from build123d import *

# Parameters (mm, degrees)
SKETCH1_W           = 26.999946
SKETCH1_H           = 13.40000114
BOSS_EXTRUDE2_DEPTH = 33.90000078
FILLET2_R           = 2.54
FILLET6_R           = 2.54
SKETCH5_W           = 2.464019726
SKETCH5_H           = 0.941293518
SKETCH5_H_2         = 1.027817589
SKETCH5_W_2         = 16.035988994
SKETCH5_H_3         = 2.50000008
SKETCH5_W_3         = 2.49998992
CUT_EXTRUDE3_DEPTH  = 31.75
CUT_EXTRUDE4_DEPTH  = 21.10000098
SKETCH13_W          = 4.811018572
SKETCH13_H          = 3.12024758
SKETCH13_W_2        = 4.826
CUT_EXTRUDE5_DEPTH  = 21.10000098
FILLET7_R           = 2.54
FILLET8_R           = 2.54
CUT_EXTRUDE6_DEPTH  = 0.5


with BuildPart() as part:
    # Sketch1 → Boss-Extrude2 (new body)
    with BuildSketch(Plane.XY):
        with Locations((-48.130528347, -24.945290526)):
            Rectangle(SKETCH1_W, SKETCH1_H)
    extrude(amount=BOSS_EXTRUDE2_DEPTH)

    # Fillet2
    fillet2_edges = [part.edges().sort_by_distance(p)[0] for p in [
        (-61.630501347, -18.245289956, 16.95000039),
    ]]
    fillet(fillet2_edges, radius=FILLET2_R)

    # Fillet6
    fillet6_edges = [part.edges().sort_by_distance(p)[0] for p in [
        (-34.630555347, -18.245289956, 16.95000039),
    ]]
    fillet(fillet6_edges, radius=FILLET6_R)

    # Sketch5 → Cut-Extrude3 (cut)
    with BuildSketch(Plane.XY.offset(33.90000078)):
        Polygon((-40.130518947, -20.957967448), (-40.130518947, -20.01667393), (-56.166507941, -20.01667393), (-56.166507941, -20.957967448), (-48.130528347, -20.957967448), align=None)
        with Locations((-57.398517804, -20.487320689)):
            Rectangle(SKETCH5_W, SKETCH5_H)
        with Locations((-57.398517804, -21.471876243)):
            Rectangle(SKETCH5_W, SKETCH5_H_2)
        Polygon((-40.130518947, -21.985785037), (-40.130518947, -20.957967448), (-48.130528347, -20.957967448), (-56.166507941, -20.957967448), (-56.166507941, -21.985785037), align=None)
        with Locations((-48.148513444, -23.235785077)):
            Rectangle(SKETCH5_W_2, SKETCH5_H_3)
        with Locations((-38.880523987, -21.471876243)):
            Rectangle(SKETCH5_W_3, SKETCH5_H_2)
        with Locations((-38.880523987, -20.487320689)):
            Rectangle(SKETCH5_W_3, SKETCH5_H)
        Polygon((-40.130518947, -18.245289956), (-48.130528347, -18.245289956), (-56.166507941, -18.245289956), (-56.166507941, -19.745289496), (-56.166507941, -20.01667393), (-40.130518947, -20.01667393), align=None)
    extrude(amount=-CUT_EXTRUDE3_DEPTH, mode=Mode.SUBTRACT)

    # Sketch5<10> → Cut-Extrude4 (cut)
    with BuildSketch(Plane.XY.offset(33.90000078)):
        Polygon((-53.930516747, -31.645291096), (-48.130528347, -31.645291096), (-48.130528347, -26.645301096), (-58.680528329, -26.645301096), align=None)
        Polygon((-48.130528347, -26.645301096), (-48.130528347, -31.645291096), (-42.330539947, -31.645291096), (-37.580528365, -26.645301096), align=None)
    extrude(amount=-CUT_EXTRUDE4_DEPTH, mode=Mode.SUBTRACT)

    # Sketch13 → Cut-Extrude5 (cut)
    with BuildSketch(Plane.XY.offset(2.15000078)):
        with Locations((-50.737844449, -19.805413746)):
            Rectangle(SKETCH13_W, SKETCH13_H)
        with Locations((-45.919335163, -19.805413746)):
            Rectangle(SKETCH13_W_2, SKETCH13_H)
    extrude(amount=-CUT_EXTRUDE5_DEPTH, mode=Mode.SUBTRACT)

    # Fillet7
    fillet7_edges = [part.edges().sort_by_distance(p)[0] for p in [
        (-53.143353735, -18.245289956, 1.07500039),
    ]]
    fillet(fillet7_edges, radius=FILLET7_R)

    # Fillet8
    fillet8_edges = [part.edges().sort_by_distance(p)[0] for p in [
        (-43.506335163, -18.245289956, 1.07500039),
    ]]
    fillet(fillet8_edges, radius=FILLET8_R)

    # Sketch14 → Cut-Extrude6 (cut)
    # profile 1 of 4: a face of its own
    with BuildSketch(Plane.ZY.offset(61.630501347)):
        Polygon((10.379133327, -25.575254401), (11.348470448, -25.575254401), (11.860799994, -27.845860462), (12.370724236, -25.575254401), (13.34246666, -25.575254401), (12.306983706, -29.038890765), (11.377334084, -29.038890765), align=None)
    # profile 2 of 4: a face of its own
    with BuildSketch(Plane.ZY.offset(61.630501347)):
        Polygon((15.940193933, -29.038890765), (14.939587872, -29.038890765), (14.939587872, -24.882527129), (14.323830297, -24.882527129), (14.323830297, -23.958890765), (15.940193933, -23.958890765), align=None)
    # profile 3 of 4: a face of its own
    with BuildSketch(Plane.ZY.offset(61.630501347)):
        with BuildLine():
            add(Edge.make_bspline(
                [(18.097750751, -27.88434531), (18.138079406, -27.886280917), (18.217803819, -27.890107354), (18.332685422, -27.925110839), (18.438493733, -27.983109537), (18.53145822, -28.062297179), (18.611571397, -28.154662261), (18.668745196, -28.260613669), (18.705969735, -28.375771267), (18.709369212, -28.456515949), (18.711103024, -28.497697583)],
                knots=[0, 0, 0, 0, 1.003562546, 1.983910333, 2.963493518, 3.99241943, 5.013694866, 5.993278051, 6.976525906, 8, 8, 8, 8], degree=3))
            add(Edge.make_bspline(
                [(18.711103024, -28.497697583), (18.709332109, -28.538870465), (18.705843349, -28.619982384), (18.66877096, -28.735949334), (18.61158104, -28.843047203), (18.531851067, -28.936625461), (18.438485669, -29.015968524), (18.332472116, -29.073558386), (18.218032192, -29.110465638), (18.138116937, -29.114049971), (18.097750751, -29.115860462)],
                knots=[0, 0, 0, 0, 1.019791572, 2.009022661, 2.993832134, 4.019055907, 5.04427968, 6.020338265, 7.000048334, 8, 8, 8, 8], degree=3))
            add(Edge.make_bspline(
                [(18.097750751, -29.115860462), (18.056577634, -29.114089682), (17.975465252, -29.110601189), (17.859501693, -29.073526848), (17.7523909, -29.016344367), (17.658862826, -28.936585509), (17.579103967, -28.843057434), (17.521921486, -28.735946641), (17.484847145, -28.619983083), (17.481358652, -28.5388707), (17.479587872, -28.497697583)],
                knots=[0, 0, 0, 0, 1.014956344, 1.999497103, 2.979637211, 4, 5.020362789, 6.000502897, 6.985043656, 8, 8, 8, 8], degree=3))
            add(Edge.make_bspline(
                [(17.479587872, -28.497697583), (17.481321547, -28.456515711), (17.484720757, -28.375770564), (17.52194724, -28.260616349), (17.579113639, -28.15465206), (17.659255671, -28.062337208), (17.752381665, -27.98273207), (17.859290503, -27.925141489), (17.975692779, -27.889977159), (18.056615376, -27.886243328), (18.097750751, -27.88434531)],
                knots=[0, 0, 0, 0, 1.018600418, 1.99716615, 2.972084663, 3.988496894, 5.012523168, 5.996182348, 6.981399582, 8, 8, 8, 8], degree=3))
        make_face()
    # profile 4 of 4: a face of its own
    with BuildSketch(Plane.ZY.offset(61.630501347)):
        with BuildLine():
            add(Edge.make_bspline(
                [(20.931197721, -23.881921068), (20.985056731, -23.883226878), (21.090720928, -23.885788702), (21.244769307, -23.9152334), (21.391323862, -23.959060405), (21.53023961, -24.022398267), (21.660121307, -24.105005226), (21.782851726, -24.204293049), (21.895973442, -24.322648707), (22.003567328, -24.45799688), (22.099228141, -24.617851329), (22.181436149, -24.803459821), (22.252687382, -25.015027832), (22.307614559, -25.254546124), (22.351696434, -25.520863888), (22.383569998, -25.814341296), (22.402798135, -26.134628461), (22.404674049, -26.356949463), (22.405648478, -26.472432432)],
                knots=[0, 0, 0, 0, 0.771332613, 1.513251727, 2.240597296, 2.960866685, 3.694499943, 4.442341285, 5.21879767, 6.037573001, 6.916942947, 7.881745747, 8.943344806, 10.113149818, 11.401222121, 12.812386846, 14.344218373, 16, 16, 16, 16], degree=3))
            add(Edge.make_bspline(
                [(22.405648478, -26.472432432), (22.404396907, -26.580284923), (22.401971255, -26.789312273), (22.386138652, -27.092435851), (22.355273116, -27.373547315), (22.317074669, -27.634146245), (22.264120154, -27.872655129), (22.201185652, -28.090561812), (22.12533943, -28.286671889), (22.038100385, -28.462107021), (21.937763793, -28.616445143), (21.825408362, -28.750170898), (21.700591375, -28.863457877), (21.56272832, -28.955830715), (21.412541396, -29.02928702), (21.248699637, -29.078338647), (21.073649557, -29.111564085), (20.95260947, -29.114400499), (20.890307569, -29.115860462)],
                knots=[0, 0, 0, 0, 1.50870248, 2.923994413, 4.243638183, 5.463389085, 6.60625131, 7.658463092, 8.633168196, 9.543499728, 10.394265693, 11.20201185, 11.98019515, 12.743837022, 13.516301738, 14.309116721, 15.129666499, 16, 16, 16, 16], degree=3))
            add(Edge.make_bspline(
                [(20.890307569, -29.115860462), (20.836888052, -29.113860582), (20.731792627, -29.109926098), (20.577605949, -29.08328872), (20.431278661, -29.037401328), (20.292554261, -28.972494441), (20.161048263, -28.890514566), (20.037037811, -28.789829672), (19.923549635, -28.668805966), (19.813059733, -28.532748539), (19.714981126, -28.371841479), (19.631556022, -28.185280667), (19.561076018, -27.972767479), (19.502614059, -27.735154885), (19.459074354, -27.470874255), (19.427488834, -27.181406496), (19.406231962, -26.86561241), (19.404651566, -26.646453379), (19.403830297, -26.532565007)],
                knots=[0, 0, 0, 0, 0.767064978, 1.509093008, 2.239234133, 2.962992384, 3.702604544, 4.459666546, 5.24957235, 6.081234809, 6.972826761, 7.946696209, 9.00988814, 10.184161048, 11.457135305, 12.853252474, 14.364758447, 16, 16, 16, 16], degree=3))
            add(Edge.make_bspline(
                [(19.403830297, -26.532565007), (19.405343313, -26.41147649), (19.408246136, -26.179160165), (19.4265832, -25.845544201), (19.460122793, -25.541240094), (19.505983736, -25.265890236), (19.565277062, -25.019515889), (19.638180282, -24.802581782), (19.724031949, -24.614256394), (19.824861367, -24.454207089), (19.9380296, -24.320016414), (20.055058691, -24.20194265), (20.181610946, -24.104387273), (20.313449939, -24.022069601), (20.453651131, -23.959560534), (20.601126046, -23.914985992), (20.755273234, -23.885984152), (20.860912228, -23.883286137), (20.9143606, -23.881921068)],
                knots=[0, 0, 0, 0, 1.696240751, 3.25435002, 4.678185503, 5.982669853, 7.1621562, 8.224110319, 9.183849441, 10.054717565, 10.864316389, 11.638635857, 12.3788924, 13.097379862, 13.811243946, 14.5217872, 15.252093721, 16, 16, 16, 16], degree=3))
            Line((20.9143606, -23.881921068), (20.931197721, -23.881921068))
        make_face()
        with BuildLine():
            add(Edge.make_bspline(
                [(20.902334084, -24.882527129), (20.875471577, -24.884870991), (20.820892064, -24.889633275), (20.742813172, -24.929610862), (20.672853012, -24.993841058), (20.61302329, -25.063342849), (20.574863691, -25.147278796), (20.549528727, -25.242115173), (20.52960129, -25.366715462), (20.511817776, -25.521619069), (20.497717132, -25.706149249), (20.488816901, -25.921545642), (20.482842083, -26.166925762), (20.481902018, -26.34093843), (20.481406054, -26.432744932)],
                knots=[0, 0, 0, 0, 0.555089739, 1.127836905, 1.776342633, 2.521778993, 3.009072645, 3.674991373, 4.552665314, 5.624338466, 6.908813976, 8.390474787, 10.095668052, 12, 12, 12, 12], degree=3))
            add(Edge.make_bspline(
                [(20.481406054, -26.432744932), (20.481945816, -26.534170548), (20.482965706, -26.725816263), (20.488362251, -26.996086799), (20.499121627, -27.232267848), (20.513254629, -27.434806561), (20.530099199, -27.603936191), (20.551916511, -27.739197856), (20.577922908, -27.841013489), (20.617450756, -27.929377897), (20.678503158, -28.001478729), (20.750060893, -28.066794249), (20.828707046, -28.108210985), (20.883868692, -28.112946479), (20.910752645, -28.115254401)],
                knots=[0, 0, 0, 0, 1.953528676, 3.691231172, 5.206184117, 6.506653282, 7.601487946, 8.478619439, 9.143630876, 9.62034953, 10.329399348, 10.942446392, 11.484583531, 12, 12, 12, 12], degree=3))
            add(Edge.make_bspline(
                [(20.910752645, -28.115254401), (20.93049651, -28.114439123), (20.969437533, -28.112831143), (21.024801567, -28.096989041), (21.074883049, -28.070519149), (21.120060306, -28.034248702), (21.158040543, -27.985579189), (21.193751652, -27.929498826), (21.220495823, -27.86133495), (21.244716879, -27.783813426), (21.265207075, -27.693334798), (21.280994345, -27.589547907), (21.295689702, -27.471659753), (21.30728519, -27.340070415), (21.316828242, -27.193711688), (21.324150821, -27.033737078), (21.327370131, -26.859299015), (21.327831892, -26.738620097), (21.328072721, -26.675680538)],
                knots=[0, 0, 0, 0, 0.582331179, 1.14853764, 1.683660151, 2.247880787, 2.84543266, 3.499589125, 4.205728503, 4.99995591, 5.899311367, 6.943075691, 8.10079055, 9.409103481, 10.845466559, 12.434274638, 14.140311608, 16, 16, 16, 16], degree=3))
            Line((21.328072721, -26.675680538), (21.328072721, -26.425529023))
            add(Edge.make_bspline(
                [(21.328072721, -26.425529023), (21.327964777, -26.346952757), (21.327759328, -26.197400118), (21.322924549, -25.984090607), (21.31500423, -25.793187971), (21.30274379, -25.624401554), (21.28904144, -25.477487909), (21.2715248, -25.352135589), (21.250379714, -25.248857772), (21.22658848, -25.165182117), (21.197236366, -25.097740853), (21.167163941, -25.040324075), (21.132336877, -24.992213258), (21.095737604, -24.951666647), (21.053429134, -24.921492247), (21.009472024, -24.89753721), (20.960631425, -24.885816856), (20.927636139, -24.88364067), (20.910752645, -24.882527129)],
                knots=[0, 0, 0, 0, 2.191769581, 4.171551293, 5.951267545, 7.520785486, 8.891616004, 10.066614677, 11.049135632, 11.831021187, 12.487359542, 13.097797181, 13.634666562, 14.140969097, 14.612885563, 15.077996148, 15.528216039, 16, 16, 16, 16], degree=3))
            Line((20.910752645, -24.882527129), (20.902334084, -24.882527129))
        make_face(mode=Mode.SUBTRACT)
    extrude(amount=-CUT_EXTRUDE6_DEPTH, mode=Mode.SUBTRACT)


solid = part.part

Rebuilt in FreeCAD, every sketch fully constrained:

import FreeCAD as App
import Part
import Sketcher

V = App.Vector


def edges_at(feature, points):
    """Names of the edges that pass closest to the given points."""
    edges = feature.Shape.Edges
    near = lambda p: min(range(len(edges)), key=lambda i: edges[i].distToShape(Part.Vertex(*p))[0])
    return sorted({f"Edge{near(p) + 1}" for p in points})


def add_polygon(sketch, points):
    """Adds a closed chain of lines whose ends are joined by coincident constraints."""
    first, n = sketch.GeometryCount, len(points)
    for a, b in zip(points, points[1:] + points[:1]):
        sketch.addGeometry(Part.LineSegment(App.Vector(*a, 0), App.Vector(*b, 0)), False)
    for i in range(n):
        sketch.addConstraint(Sketcher.Constraint("Coincident", first + i, 2, first + (i + 1) % n, 1))

doc = App.newDocument("Part")
body = doc.addObject("PartDesign::Body", "Body")

# Sketch on XY plane
sketch1 = body.newObject("Sketcher::SketchObject", "Sketch")
sketch1.AttachmentSupport = (doc.getObject("XY_Plane"), [""])
sketch1.MapMode = "FlatFace"
add_polygon(sketch1, [(-61.630501, -18.24529), (-61.630501, -31.645291), (-34.630555, -31.645291), (-34.630555, -18.24529)])  # lines 0-3
sketch1.addConstraint([
    Sketcher.Constraint("Vertical", 0),
    Sketcher.Constraint("Horizontal", 1),
    Sketcher.Constraint("Vertical", 2),
    Sketcher.Constraint("Horizontal", 3),
    Sketcher.Constraint("DistanceY", 0, 2, 0, 1, 13.400001),
    Sketcher.Constraint("DistanceX", 0, 2, -1, 1, 61.630501),
    Sketcher.Constraint("DistanceX", 1, 1, 1, 2, 26.999946),
    Sketcher.Constraint("DistanceY", 0, 2, -1, 1, 31.645291),
])
pad1 = body.newObject("PartDesign::Pad", "Pad")
pad1.Profile = sketch1
pad1.Length = 33.900001
doc.recompute()

fillet = body.newObject("PartDesign::Fillet", "Fillet")
fillet.Base = (pad1, edges_at(pad1, [(-61.631, -18.245, 16.95)]))
fillet.Radius = 2.54
doc.recompute()

fillet2 = body.newObject("PartDesign::Fillet", "Fillet001")
fillet2.Base = (fillet, edges_at(fillet, [(-34.631, -18.245, 16.95)]))
fillet2.Radius = 2.54

# Sketch on XY plane
sketch2 = body.newObject("Sketcher::SketchObject", "Sketch001")
sketch2.AttachmentSupport = (doc.getObject("XY_Plane"), [""])
sketch2.MapMode = "FlatFace"
sketch2.AttachmentOffset = App.Placement(V(0, 0, 33.900001), App.Rotation())
add_polygon(sketch2, [(-58.630528, -20.016674), (-58.630528, -21.985785), (-56.166508, -21.985785), (-56.166508, -24.485785), (-40.130519, -24.485785), (-40.130519, -21.985785), (-37.630529, -21.985785), (-37.630529, -20.016674), (-40.130519, -20.016674), (-40.130519, -18.24529), (-56.166508, -18.24529), (-56.166508, -20.016674)])  # lines 0-11
sketch2.addConstraint([
    Sketcher.Constraint("Vertical", 0),
    Sketcher.Constraint("Horizontal", 1),
    Sketcher.Constraint("Vertical", 2),
    Sketcher.Constraint("Horizontal", 3),
    Sketcher.Constraint("Vertical", 4),
    Sketcher.Constraint("Horizontal", 5),
    Sketcher.Constraint("Vertical", 6),
    Sketcher.Constraint("Horizontal", 7),
    Sketcher.Constraint("Vertical", 8),
    Sketcher.Constraint("Horizontal", 9),
    Sketcher.Constraint("Vertical", 10),
    Sketcher.Constraint("Horizontal", 11),
    Sketcher.Constraint("Horizontal", 1, 2, 4, 2),
    Sketcher.Constraint("Horizontal", 7, 2, 10, 2),
    Sketcher.Constraint("Vertical", 4, 2, 7, 2),
    Sketcher.Constraint("Vertical", 2, 2, 9, 2),
    Sketcher.Constraint("DistanceY", 2, 2, 2, 1, 2.5),
    Sketcher.Constraint("DistanceX", 0, 2, 5, 2, 20.999999),
    Sketcher.Constraint("DistanceX", 1, 1, 1, 2, 2.46402),
    Sketcher.Constraint("DistanceX", 3, 1, 3, 2, 16.035989),
    Sketcher.Constraint("DistanceY", 0, 2, 0, 1, 1.969111),
    Sketcher.Constraint("DistanceY", 8, 1, 8, 2, 1.771384),
    Sketcher.Constraint("DistanceX", 3, 2, -1, 1, 40.130519),
    Sketcher.Constraint("DistanceY", 8, 2, -1, 1, 18.24529),
])
pocket1 = body.newObject("PartDesign::Pocket", "Pocket")
pocket1.Profile = sketch2
pocket1.Length = 31.75

# Sketch on XY plane
sketch3 = body.newObject("Sketcher::SketchObject", "Sketch002")
sketch3.AttachmentSupport = (doc.getObject("XY_Plane"), [""])
sketch3.MapMode = "FlatFace"
sketch3.AttachmentOffset = App.Placement(V(0, 0, 33.900001), App.Rotation())
add_polygon(sketch3, [(-53.930517, -31.645291), (-42.33054, -31.645291), (-37.580528, -26.645301), (-58.680528, -26.645301)])  # lines 0-3
sketch3.addConstraint([
    Sketcher.Constraint("Horizontal", 0),
    Sketcher.Constraint("Horizontal", 2),
    Sketcher.Constraint("Equal", 1, 3),
    Sketcher.Constraint("DistanceX", 2, 2, 2, 1, 21.1),
    Sketcher.Constraint("DistanceY", 1, 2, -1, 1, 26.645301),
    Sketcher.Constraint("DistanceX", 0, 1, 0, 2, 11.599977),
    Sketcher.Constraint("DistanceX", 0, 2, -1, 1, 42.33054),
    Sketcher.Constraint("DistanceY", 0, 2, -1, 1, 31.645291),
])
pocket2 = body.newObject("PartDesign::Pocket", "Pocket001")
pocket2.Profile = sketch3
pocket2.Length = 21.100001

# Sketch on XY plane
sketch4 = body.newObject("Sketcher::SketchObject", "Sketch003")
sketch4.AttachmentSupport = (doc.getObject("XY_Plane"), [""])
sketch4.MapMode = "FlatFace"
sketch4.AttachmentOffset = App.Placement(V(0, 0, 2.150001), App.Rotation())
add_polygon(sketch4, [(-53.143354, -18.24529), (-53.143354, -21.365538), (-43.506335, -21.365538), (-43.506335, -18.24529)])  # lines 0-3
sketch4.addConstraint([
    Sketcher.Constraint("Vertical", 0),
    Sketcher.Constraint("Horizontal", 1),
    Sketcher.Constraint("Vertical", 2),
    Sketcher.Constraint("Horizontal", 3),
    Sketcher.Constraint("DistanceX", 1, 1, 1, 2, 9.637019),
    Sketcher.Constraint("DistanceY", 0, 2, 0, 1, 3.120248),
    Sketcher.Constraint("DistanceY", 2, 2, -1, 1, 18.24529),
    Sketcher.Constraint("DistanceX", 0, 2, -1, 1, 53.143354),
])
pocket3 = body.newObject("PartDesign::Pocket", "Pocket002")
pocket3.Profile = sketch4
pocket3.Length = 21.100001
doc.recompute()

fillet3 = body.newObject("PartDesign::Fillet", "Fillet002")
fillet3.Base = (pocket3, edges_at(pocket3, [(-53.143, -18.245, 1.075)]))
fillet3.Radius = 2.54
doc.recompute()

fillet4 = body.newObject("PartDesign::Fillet", "Fillet003")
fillet4.Base = (fillet3, edges_at(fillet3, [(-43.506, -18.245, 1.075)]))
fillet4.Radius = 2.54

# Sketch on YZ plane
sketch5 = body.newObject("Sketcher::SketchObject", "Sketch004")
sketch5.AttachmentSupport = (doc.getObject("YZ_Plane"), [""])
sketch5.MapMode = "FlatFace"
sketch5.AttachmentOffset = App.Placement(V(0, 0, -61.630501), App.Rotation())
add_polygon(sketch5, [(-25.575254, 11.34847), (-25.575254, 10.379133), (-29.038891, 11.377334), (-29.038891, 12.306984), (-25.575254, 13.342467), (-25.575254, 12.370724), (-27.84586, 11.8608)])  # lines 0-6
add_polygon(sketch5, [(-29.038891, 14.939588), (-29.038891, 15.940194), (-23.958891, 15.940194), (-23.958891, 14.32383), (-24.882527, 14.32383), (-24.882527, 14.939588)])  # lines 7-12
sketch5.addGeometry(Part.BSplineCurve([V(-27.884345, 18.097751, 0), V(-27.886281, 18.138079, 0), V(-27.890107, 18.217804, 0), V(-27.925111, 18.332685, 0), V(-27.98311, 18.438494, 0), V(-28.062297, 18.531458, 0), V(-28.154662, 18.611571, 0), V(-28.260614, 18.668745, 0), V(-28.375771, 18.70597, 0), V(-28.456516, 18.709369, 0), V(-28.497698, 18.711103, 0)], [4, 1, 1, 1, 1, 1, 1, 1, 4], [0, 1.003562546, 1.983910333, 2.963493518, 3.99241943, 5.013694866, 5.993278051, 6.976525906, 8], False, 3, [1, 1, 1, 1, 1, 1, 1, 1, 1, 1, 1], False), False)  # 13
sketch5.addGeometry(Part.BSplineCurve([V(-28.497698, 17.479588, 0), V(-28.456516, 17.481322, 0), V(-28.375771, 17.484721, 0), V(-28.260616, 17.521947, 0), V(-28.154652, 17.579114, 0), V(-28.062337, 17.659256, 0), V(-27.982732, 17.752382, 0), V(-27.925141, 17.859291, 0), V(-27.889977, 17.975693, 0), V(-27.886243, 18.056615, 0), V(-27.884345, 18.097751, 0)], [4, 1, 1, 1, 1, 1, 1, 1, 4], [0, 1.018600418, 1.99716615, 2.972084663, 3.988496894, 5.012523168, 5.996182348, 6.981399582, 8], False, 3, [1, 1, 1, 1, 1, 1, 1, 1, 1, 1, 1], False), False)  # 14
sketch5.addGeometry(Part.BSplineCurve([V(-29.11586, 18.097751, 0), V(-29.11409, 18.056578, 0), V(-29.110601, 17.975465, 0), V(-29.073527, 17.859502, 0), V(-29.016344, 17.752391, 0), V(-28.936586, 17.658863, 0), V(-28.843057, 17.579104, 0), V(-28.735947, 17.521921, 0), V(-28.619983, 17.484847, 0), V(-28.538871, 17.481359, 0), V(-28.497698, 17.479588, 0)], [4, 1, 1, 1, 1, 1, 1, 1, 4], [0, 1.014956344, 1.999497103, 2.979637211, 4, 5.020362789, 6.000502897, 6.985043656, 8], False, 3, [1, 1, 1, 1, 1, 1, 1, 1, 1, 1, 1], False), False)  # 15
sketch5.addGeometry(Part.BSplineCurve([V(-28.497698, 18.711103, 0), V(-28.53887, 18.709332, 0), V(-28.619982, 18.705843, 0), V(-28.735949, 18.668771, 0), V(-28.843047, 18.611581, 0), V(-28.936625, 18.531851, 0), V(-29.015969, 18.438486, 0), V(-29.073558, 18.332472, 0), V(-29.110466, 18.218032, 0), V(-29.11405, 18.138117, 0), V(-29.11586, 18.097751, 0)], [4, 1, 1, 1, 1, 1, 1, 1, 4], [0, 1.019791572, 2.009022661, 2.993832134, 4.019055907, 5.04427968, 6.020338265, 7.000048334, 8], False, 3, [1, 1, 1, 1, 1, 1, 1, 1, 1, 1, 1], False), False)  # 16
sketch5.addGeometry(Part.BSplineCurve([V(-23.881921, 20.931198, 0), V(-23.883227, 20.985057, 0), V(-23.885789, 21.090721, 0), V(-23.915233, 21.244769, 0), V(-23.95906, 21.391324, 0), V(-24.022398, 21.53024, 0), V(-24.105005, 21.660121, 0), V(-24.204293, 21.782852, 0), V(-24.322649, 21.895973, 0), V(-24.457997, 22.003567, 0), V(-24.617851, 22.099228, 0), V(-24.80346, 22.181436, 0), V(-25.015028, 22.252687, 0), V(-25.254546, 22.307615, 0), V(-25.520864, 22.351696, 0), V(-25.814341, 22.38357, 0), V(-26.134628, 22.402798, 0), V(-26.356949, 22.404674, 0), V(-26.472432, 22.405648, 0)], [4, 1, 1, 1, 1, 1, 1, 1, 1, 1, 1, 1, 1, 1, 1, 1, 4], [0, 0.771332613, 1.513251727, 2.240597296, 2.960866685, 3.694499943, 4.442341285, 5.21879767, 6.037573001, 6.916942947, 7.881745747, 8.943344806, 10.113149818, 11.401222121, 12.812386846, 14.344218373, 16], False, 3, [1, 1, 1, 1, 1, 1, 1, 1, 1, 1, 1, 1, 1, 1, 1, 1, 1, 1, 1], False), False)  # 17
sketch5.addGeometry(Part.LineSegment(V(-23.881921, 20.931198, 0), V(-23.881921, 20.914361, 0)), False)  # 18
sketch5.addGeometry(Part.BSplineCurve([V(-26.532565, 19.40383, 0), V(-26.411476, 19.405343, 0), V(-26.17916, 19.408246, 0), V(-25.845544, 19.426583, 0), V(-25.54124, 19.460123, 0), V(-25.26589, 19.505984, 0), V(-25.019516, 19.565277, 0), V(-24.802582, 19.63818, 0), V(-24.614256, 19.724032, 0), V(-24.454207, 19.824861, 0), V(-24.320016, 19.93803, 0), V(-24.201943, 20.055059, 0), V(-24.104387, 20.181611, 0), V(-24.02207, 20.31345, 0), V(-23.959561, 20.453651, 0), V(-23.914986, 20.601126, 0), V(-23.885984, 20.755273, 0), V(-23.883286, 20.860912, 0), V(-23.881921, 20.914361, 0)], [4, 1, 1, 1, 1, 1, 1, 1, 1, 1, 1, 1, 1, 1, 1, 1, 4], [0, 1.696240751, 3.25435002, 4.678185503, 5.982669853, 7.1621562, 8.224110319, 9.183849441, 10.054717565, 10.864316389, 11.638635857, 12.3788924, 13.097379862, 13.811243946, 14.5217872, 15.252093721, 16], False, 3, [1, 1, 1, 1, 1, 1, 1, 1, 1, 1, 1, 1, 1, 1, 1, 1, 1, 1, 1], False), False)  # 19
sketch5.addGeometry(Part.BSplineCurve([V(-29.11586, 20.890308, 0), V(-29.113861, 20.836888, 0), V(-29.109926, 20.731793, 0), V(-29.083289, 20.577606, 0), V(-29.037401, 20.431279, 0), V(-28.972494, 20.292554, 0), V(-28.890515, 20.161048, 0), V(-28.78983, 20.037038, 0), V(-28.668806, 19.92355, 0), V(-28.532749, 19.81306, 0), V(-28.371841, 19.714981, 0), V(-28.185281, 19.631556, 0), V(-27.972767, 19.561076, 0), V(-27.735155, 19.502614, 0), V(-27.470874, 19.459074, 0), V(-27.181406, 19.427489, 0), V(-26.865612, 19.406232, 0), V(-26.646453, 19.404652, 0), V(-26.532565, 19.40383, 0)], [4, 1, 1, 1, 1, 1, 1, 1, 1, 1, 1, 1, 1, 1, 1, 1, 4], [0, 0.767064978, 1.509093008, 2.239234133, 2.962992384, 3.702604544, 4.459666546, 5.24957235, 6.081234809, 6.972826761, 7.946696209, 9.00988814, 10.184161048, 11.457135305, 12.853252474, 14.364758447, 16], False, 3, [1, 1, 1, 1, 1, 1, 1, 1, 1, 1, 1, 1, 1, 1, 1, 1, 1, 1, 1], False), False)  # 20
sketch5.addGeometry(Part.BSplineCurve([V(-26.472432, 22.405648, 0), V(-26.580285, 22.404397, 0), V(-26.789312, 22.401971, 0), V(-27.092436, 22.386139, 0), V(-27.373547, 22.355273, 0), V(-27.634146, 22.317075, 0), V(-27.872655, 22.26412, 0), V(-28.090562, 22.201186, 0), V(-28.286672, 22.125339, 0), V(-28.462107, 22.0381, 0), V(-28.616445, 21.937764, 0), V(-28.750171, 21.825408, 0), V(-28.863458, 21.700591, 0), V(-28.955831, 21.562728, 0), V(-29.029287, 21.412541, 0), V(-29.078339, 21.2487, 0), V(-29.111564, 21.07365, 0), V(-29.1144, 20.952609, 0), V(-29.11586, 20.890308, 0)], [4, 1, 1, 1, 1, 1, 1, 1, 1, 1, 1, 1, 1, 1, 1, 1, 4], [0, 1.50870248, 2.923994413, 4.243638183, 5.463389085, 6.60625131, 7.658463092, 8.633168196, 9.543499728, 10.394265693, 11.20201185, 11.98019515, 12.743837022, 13.516301738, 14.309116721, 15.129666499, 16], False, 3, [1, 1, 1, 1, 1, 1, 1, 1, 1, 1, 1, 1, 1, 1, 1, 1, 1, 1, 1], False), False)  # 21
sketch5.addGeometry(Part.LineSegment(V(-24.882527, 20.902334, 0), V(-24.882527, 20.910753, 0)), False)  # 22
sketch5.addGeometry(Part.BSplineCurve([V(-26.425529, 21.328073, 0), V(-26.346953, 21.327965, 0), V(-26.1974, 21.327759, 0), V(-25.984091, 21.322925, 0), V(-25.793188, 21.315004, 0), V(-25.624402, 21.302744, 0), V(-25.477488, 21.289041, 0), V(-25.352136, 21.271525, 0), V(-25.248858, 21.25038, 0), V(-25.165182, 21.226588, 0), V(-25.097741, 21.197236, 0), V(-25.040324, 21.167164, 0), V(-24.992213, 21.132337, 0), V(-24.951667, 21.095738, 0), V(-24.921492, 21.053429, 0), V(-24.897537, 21.009472, 0), V(-24.885817, 20.960631, 0), V(-24.883641, 20.927636, 0), V(-24.882527, 20.910753, 0)], [4, 1, 1, 1, 1, 1, 1, 1, 1, 1, 1, 1, 1, 1, 1, 1, 4], [0, 2.191769581, 4.171551293, 5.951267545, 7.520785486, 8.891616004, 10.066614677, 11.049135632, 11.831021187, 12.487359542, 13.097797181, 13.634666562, 14.140969097, 14.612885563, 15.077996148, 15.528216039, 16], False, 3, [1, 1, 1, 1, 1, 1, 1, 1, 1, 1, 1, 1, 1, 1, 1, 1, 1, 1, 1], False), False)  # 23
sketch5.addGeometry(Part.LineSegment(V(-26.425529, 21.328073, 0), V(-26.675681, 21.328073, 0)), False)  # 24
sketch5.addGeometry(Part.BSplineCurve([V(-28.115254, 20.910753, 0), V(-28.114439, 20.930497, 0), V(-28.112831, 20.969438, 0), V(-28.096989, 21.024802, 0), V(-28.070519, 21.074883, 0), V(-28.034249, 21.12006, 0), V(-27.985579, 21.158041, 0), V(-27.929499, 21.193752, 0), V(-27.861335, 21.220496, 0), V(-27.783813, 21.244717, 0), V(-27.693335, 21.265207, 0), V(-27.589548, 21.280994, 0), V(-27.47166, 21.29569, 0), V(-27.34007, 21.307285, 0), V(-27.193712, 21.316828, 0), V(-27.033737, 21.324151, 0), V(-26.859299, 21.32737, 0), V(-26.73862, 21.327832, 0), V(-26.675681, 21.328073, 0)], [4, 1, 1, 1, 1, 1, 1, 1, 1, 1, 1, 1, 1, 1, 1, 1, 4], [0, 0.582331179, 1.14853764, 1.683660151, 2.247880787, 2.84543266, 3.499589125, 4.205728503, 4.99995591, 5.899311367, 6.943075691, 8.10079055, 9.409103481, 10.845466559, 12.434274638, 14.140311608, 16], False, 3, [1, 1, 1, 1, 1, 1, 1, 1, 1, 1, 1, 1, 1, 1, 1, 1, 1, 1, 1], False), False)  # 25
sketch5.addGeometry(Part.BSplineCurve([V(-26.432745, 20.481406, 0), V(-26.534171, 20.481946, 0), V(-26.725816, 20.482966, 0), V(-26.996087, 20.488362, 0), V(-27.232268, 20.499122, 0), V(-27.434807, 20.513255, 0), V(-27.603936, 20.530099, 0), V(-27.739198, 20.551917, 0), V(-27.841013, 20.577923, 0), V(-27.929378, 20.617451, 0), V(-28.001479, 20.678503, 0), V(-28.066794, 20.750061, 0), V(-28.108211, 20.828707, 0), V(-28.112946, 20.883869, 0), V(-28.115254, 20.910753, 0)], [4, 1, 1, 1, 1, 1, 1, 1, 1, 1, 1, 1, 4], [0, 1.953528676, 3.691231172, 5.206184117, 6.506653282, 7.601487946, 8.478619439, 9.143630876, 9.62034953, 10.329399348, 10.942446392, 11.484583531, 12], False, 3, [1, 1, 1, 1, 1, 1, 1, 1, 1, 1, 1, 1, 1, 1, 1], False), False)  # 26
sketch5.addGeometry(Part.BSplineCurve([V(-24.882527, 20.902334, 0), V(-24.884871, 20.875472, 0), V(-24.889633, 20.820892, 0), V(-24.929611, 20.742813, 0), V(-24.993841, 20.672853, 0), V(-25.063343, 20.613023, 0), V(-25.147279, 20.574864, 0), V(-25.242115, 20.549529, 0), V(-25.366715, 20.529601, 0), V(-25.521619, 20.511818, 0), V(-25.706149, 20.497717, 0), V(-25.921546, 20.488817, 0), V(-26.166926, 20.482842, 0), V(-26.340938, 20.481902, 0), V(-26.432745, 20.481406, 0)], [4, 1, 1, 1, 1, 1, 1, 1, 1, 1, 1, 1, 4], [0, 0.555089739, 1.127836905, 1.776342633, 2.521778993, 3.009072645, 3.674991373, 4.552665314, 5.624338466, 6.908813976, 8.390474787, 10.095668052, 12], False, 3, [1, 1, 1, 1, 1, 1, 1, 1, 1, 1, 1, 1, 1, 1, 1], False), False)  # 27
sketch5.addConstraint([
    Sketcher.Constraint("Block", 13),
    Sketcher.Constraint("Block", 14),
    Sketcher.Constraint("Block", 15),
    Sketcher.Constraint("Block", 16),
    Sketcher.Constraint("Block", 17),
    Sketcher.Constraint("Block", 19),
    Sketcher.Constraint("Block", 20),
    Sketcher.Constraint("Block", 21),
    Sketcher.Constraint("Block", 23),
    Sketcher.Constraint("Block", 25),
    Sketcher.Constraint("Block", 26),
    Sketcher.Constraint("Block", 27),
    Sketcher.Constraint("Coincident", 17, 1, 18, 1),
    Sketcher.Constraint("Coincident", 18, 2, 19, 2),
    Sketcher.Constraint("Coincident", 22, 2, 23, 2),
    Sketcher.Constraint("Coincident", 23, 1, 24, 1),
    Sketcher.Constraint("Coincident", 24, 2, 25, 2),
    Sketcher.Constraint("Coincident", 27, 1, 22, 1),
    Sketcher.Constraint("Vertical", 0),
    Sketcher.Constraint("Vertical", 2),
    Sketcher.Constraint("Vertical", 4),
    Sketcher.Constraint("Vertical", 7),
    Sketcher.Constraint("Horizontal", 8),
    Sketcher.Constraint("Vertical", 9),
    Sketcher.Constraint("Horizontal", 10),
    Sketcher.Constraint("Vertical", 11),
    Sketcher.Constraint("Horizontal", 12),
    Sketcher.Constraint("Vertical", 0, 2, 3, 2),
    Sketcher.Constraint("Vertical", 2, 2, 7, 2),
    Sketcher.Constraint("Vertical", 11, 2, 22, 2),
    Sketcher.Constraint("DistanceX", 8, 1, 8, 2, 5.08),
    Sketcher.Constraint("DistanceY", 2, 1, 2, 2, 0.92965),
    Sketcher.Constraint("DistanceY", -1, 1, 5, 2, 11.8608),
    Sketcher.Constraint("DistanceY", 0, 2, 1, 2, 0.998201),
    Sketcher.Constraint("Distance", 5, 2.32716),
    Sketcher.Constraint("Distance", 6, 2.327688),
    Sketcher.Constraint("DistanceX", 10, 2, 10, 1, 0.923636),
    Sketcher.Constraint("DistanceY", 0, 2, 0, 1, 0.969337),
    Sketcher.Constraint("DistanceY", 4, 2, 4, 1, 0.971742),
    Sketcher.Constraint("DistanceY", 7, 1, 7, 2, 1.000606),
    Sketcher.Constraint("DistanceY", 9, 2, 9, 1, 1.616364),
    Sketcher.Constraint("DistanceX", 5, 2, -1, 1, 27.84586),
    Sketcher.Constraint("DistanceY", -1, 1, 6, 2, 11.34847),
    Sketcher.Constraint("DistanceY", -1, 1, 9, 2, 14.32383),
])
pocket4 = body.newObject("PartDesign::Pocket", "Pocket003")
pocket4.Profile = sketch5
pocket4.Length = 0.5
pocket4.Reversed = True

doc.recompute()
